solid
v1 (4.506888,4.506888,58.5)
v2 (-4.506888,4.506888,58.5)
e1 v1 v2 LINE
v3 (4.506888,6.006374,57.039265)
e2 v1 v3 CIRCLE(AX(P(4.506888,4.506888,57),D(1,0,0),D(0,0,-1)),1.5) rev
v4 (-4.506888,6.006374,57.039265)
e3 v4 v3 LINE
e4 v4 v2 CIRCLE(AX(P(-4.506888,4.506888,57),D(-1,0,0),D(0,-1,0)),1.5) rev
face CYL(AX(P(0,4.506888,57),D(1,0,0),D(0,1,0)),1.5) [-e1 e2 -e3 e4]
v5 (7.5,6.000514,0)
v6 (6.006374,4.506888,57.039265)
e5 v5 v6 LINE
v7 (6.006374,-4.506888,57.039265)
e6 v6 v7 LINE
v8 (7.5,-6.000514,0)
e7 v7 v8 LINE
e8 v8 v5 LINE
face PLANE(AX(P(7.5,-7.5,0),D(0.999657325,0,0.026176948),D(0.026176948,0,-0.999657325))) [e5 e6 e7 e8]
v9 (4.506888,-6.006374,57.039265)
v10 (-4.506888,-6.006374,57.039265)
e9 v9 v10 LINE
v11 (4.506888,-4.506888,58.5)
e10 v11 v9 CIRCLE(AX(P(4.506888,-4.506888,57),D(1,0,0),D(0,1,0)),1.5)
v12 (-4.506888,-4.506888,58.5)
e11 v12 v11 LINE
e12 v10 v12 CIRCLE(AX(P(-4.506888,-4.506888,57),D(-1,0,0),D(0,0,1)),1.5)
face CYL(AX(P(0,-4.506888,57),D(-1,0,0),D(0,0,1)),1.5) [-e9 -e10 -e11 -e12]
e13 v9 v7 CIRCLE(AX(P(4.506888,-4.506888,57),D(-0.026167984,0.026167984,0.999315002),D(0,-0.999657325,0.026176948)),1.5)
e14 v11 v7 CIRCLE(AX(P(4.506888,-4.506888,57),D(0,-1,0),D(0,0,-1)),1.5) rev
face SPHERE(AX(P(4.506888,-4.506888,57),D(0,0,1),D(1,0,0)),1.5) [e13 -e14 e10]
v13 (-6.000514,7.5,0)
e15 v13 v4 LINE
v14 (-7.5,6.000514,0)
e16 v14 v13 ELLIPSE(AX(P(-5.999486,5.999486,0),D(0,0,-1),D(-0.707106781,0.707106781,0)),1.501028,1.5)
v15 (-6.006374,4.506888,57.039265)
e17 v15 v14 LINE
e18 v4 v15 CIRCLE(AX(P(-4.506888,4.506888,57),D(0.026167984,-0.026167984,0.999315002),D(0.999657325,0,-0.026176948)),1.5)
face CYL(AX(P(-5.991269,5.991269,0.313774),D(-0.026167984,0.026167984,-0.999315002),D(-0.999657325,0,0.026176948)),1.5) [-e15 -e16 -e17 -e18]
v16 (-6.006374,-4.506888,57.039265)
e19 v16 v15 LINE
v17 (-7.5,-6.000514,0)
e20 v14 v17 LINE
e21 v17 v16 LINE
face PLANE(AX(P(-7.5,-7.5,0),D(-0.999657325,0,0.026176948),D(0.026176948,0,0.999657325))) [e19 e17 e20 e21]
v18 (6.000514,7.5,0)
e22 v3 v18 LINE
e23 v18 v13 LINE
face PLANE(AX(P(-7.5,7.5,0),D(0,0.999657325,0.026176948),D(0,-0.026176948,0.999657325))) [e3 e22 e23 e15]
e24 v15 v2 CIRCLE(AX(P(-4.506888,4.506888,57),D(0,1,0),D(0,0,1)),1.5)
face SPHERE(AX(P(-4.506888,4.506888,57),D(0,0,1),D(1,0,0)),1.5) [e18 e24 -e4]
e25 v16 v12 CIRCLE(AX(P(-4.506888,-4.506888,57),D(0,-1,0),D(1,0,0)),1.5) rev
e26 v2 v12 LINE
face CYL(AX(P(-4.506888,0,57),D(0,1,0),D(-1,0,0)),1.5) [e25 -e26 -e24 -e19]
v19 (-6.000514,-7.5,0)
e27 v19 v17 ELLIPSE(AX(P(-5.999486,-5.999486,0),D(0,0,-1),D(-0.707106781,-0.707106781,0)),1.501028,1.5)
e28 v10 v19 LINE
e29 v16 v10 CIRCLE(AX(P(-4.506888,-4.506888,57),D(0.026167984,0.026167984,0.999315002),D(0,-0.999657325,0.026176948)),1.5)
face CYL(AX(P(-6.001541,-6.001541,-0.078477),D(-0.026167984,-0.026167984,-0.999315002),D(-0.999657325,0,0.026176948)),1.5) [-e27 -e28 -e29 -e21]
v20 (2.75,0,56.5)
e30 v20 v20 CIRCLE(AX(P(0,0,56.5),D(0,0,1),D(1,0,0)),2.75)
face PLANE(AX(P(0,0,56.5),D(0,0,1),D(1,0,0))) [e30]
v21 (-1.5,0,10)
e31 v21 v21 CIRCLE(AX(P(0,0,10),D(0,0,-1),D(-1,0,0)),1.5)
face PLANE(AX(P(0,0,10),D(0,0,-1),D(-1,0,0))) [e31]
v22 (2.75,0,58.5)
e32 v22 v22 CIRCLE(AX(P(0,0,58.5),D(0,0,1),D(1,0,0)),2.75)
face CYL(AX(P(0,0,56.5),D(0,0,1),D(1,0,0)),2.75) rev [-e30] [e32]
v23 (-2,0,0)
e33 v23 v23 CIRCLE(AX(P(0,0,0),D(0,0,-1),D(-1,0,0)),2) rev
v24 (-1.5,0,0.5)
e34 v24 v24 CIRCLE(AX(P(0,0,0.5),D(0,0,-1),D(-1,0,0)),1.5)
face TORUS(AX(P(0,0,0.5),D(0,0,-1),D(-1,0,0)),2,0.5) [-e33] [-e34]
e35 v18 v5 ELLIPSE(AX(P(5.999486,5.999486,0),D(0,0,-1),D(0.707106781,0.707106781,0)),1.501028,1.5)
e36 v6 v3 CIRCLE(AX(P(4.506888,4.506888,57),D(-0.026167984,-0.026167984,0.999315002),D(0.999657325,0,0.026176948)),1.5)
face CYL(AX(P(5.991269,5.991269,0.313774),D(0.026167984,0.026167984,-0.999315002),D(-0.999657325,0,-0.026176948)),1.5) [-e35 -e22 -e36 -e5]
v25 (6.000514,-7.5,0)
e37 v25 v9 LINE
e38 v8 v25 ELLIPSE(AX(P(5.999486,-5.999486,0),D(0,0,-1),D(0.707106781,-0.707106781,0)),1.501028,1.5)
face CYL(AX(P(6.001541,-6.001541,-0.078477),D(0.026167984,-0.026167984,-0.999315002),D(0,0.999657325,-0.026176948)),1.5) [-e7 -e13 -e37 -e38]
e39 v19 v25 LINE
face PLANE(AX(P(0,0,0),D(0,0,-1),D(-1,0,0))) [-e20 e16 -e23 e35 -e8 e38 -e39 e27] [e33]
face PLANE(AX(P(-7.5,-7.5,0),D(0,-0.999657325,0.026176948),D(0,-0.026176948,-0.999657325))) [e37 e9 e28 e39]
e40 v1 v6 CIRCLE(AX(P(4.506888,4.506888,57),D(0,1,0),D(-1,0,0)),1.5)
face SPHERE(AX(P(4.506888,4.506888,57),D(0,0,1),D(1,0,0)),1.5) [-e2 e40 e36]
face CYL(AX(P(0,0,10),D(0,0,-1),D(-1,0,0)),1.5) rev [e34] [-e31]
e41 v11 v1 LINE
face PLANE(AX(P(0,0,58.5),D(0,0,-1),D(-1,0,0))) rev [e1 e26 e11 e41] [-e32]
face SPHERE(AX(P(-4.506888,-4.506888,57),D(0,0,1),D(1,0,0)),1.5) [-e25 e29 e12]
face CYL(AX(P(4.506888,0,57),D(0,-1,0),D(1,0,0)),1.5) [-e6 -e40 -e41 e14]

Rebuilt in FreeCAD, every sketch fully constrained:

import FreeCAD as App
import Part
import Sketcher


def edges_at(feature, points):
    """Names of the edges that pass closest to the given points."""
    edges = feature.Shape.Edges
    near = lambda p: min(range(len(edges)), key=lambda i: edges[i].distToShape(Part.Vertex(*p))[0])
    return sorted({f"Edge{near(p) + 1}" for p in points})


def add_polygon(sketch, points):
    """Adds a closed chain of lines whose ends are joined by coincident constraints."""
    first, n = sketch.GeometryCount, len(points)
    for a, b in zip(points, points[1:] + points[:1]):
        sketch.addGeometry(Part.LineSegment(App.Vector(*a, 0), App.Vector(*b, 0)), False)
    for i in range(n):
        sketch.addConstraint(Sketcher.Constraint("Coincident", first + i, 2, first + (i + 1) % n, 1))

doc = App.newDocument("Part")
params = doc.addObject("Spreadsheet::Sheet", "Params")
for row, (alias, value) in enumerate([
    ("sketch1_width", "15 mm"),
    ("pad1_length", "58.5 mm"),
    ("pad1_taper", "-1.5 deg"),
    ("sketch2_diameter", "3 mm"),
    ("pocket1_length", "10 mm"),
    ("sketch3_diameter", "5.5 mm"),
    ("pocket2_length", "2 mm"),
    ("fillet_radius", "1.5 mm"),
    ("fillet2_radius", "0.5 mm"),
], start=1):
    params.set(f"A{row}", alias)
    params.set(f"B{row}", "=" + value)
    params.setAlias(f"B{row}", alias)

body = doc.addObject("PartDesign::Body", "Body")

sketch1 = body.newObject("Sketcher::SketchObject", "Sketch")
sketch1.AttachmentSupport = (doc.getObject("XY_Plane"), [""])
sketch1.MapMode = "FlatFace"
add_polygon(sketch1, [(-7.5, 7.5), (-7.5, -7.5), (7.5, -7.5), (7.5, 7.5)])
sketch1.addConstraint(Sketcher.Constraint("Vertical", 0))
sketch1.addConstraint(Sketcher.Constraint("Horizontal", 1))
sketch1.addConstraint(Sketcher.Constraint("Vertical", 2))
sketch1.addConstraint(Sketcher.Constraint("Horizontal", 3))
sketch1.addConstraint(Sketcher.Constraint("Symmetric", 0, 2, 2, 2, -1, 1))
sketch1.addConstraint(Sketcher.Constraint("Equal", 3, 0))
sketch1.addConstraint(Sketcher.Constraint("DistanceX", 1, 1, 1, 2, 15.0))
sketch1.setExpression("Constraints[10]", "Params.sketch1_width")
pad1 = body.newObject("PartDesign::Pad", "Pad")
pad1.Profile = sketch1
pad1.setExpression("Length", "Params.pad1_length")
pad1.setExpression("TaperAngle", "Params.pad1_taper")

sketch2 = body.newObject("Sketcher::SketchObject", "Sketch001")
sketch2.AttachmentSupport = (doc.getObject("XY_Plane"), [""])
sketch2.MapMode = "FlatFace"
sketch2.addGeometry(Part.Circle(App.Vector(0, 0, 0), App.Vector(0, 0, 1), 1.5), False)
sketch2.addConstraint(Sketcher.Constraint("Coincident", 0, 3, -1, 1))
sketch2.addConstraint(Sketcher.Constraint("Diameter", 0, 3.0))
sketch2.setExpression("Constraints[1]", "Params.sketch2_diameter")
pocket1 = body.newObject("PartDesign::Pocket", "Pocket")
pocket1.Profile = sketch2
pocket1.setExpression("Length", "Params.pocket1_length")
pocket1.Reversed = True

sketch3 = body.newObject("Sketcher::SketchObject", "Sketch002")
sketch3.AttachmentSupport = (doc.getObject("XY_Plane"), [""])
sketch3.MapMode = "FlatFace"
sketch3.AttachmentOffset = App.Placement(App.Vector(0, 0, 58.5), App.Rotation())
sketch3.addGeometry(Part.Circle(App.Vector(0, 0, 0), App.Vector(0, 0, 1), 2.75), False)
sketch3.addConstraint(Sketcher.Constraint("Coincident", 0, 3, -1, 1))
sketch3.addConstraint(Sketcher.Constraint("Diameter", 0, 5.5))
sketch3.setExpression("Constraints[1]", "Params.sketch3_diameter")
pocket2 = body.newObject("PartDesign::Pocket", "Pocket001")
pocket2.Profile = sketch3
pocket2.setExpression("Length", "Params.pocket2_length")
doc.recompute()

fillet = body.newObject("PartDesign::Fillet", "Fillet")
fillet.Base = (pocket2, edges_at(pocket2, [
    (-5.968, 0, 58.5),
    (0, -5.968, 58.5),
    (5.968, 0, 58.5),
    (6.734, -6.734, 29.25),
    (-6.734, -6.734, 29.25),
    (-6.734, 6.734, 29.25),
    (6.734, 6.734, 29.25),
    (0, 5.968, 58.5),
]))
fillet.setExpression("Radius", "Params.fillet_radius")
doc.recompute()

fillet2 = body.newObject("PartDesign::Fillet", "Fillet001")
fillet2.Base = (fillet, edges_at(fillet, [(1.5, 0, 0)]))
fillet2.setExpression("Radius", "Params.fillet2_radius")

doc.recompute()
